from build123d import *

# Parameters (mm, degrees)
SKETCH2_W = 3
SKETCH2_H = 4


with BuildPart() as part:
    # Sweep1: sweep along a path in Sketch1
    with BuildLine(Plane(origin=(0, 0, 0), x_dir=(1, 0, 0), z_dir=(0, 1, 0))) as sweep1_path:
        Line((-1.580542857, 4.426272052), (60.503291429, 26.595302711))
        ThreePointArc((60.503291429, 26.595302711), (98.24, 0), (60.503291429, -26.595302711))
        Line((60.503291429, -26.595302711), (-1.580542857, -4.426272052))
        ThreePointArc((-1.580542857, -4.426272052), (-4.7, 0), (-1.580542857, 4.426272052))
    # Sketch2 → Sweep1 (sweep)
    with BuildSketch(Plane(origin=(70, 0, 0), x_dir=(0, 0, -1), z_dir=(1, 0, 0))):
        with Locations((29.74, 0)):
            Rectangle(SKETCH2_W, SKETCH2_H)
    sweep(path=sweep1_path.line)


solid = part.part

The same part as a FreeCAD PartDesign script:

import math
import FreeCAD as App
import Part
import Sketcher
Q = App.Units.Quantity


def add_polygon(sketch, points):
    """Adds a closed chain of lines whose ends are joined by coincident constraints."""
    first, n = sketch.GeometryCount, len(points)
    for a, b in zip(points, points[1:] + points[:1]):
        sketch.addGeometry(Part.LineSegment(App.Vector(*a, 0), App.Vector(*b, 0)), False)
    for i in range(n):
        sketch.addConstraint(Sketcher.Constraint("Coincident", first + i, 2, first + (i + 1) % n, 1))

doc = App.newDocument("Part")
params = doc.addObject("Spreadsheet::Sheet", "Params")
for row, (alias, value) in enumerate([
    ("sketch1_width", "4 mm"),
    ("sketch1_height", "3 mm"),
    ("sketch2_radius", "4.7 mm"),
    ("sketch2_radius2", "28.24 mm"),
], start=1):
    params.set(f"A{row}", alias)
    params.set(f"B{row}", "=" + value)
    params.setAlias(f"B{row}", alias)

body = doc.addObject("PartDesign::Body", "Body")

# Sketch on YZ plane
sketch1 = body.newObject("Sketcher::SketchObject", "Sketch")
sketch1.AttachmentSupport = (doc.getObject("YZ_Plane"), [""])
sketch1.MapMode = "FlatFace"
sketch1.AttachmentOffset = App.Placement(App.Vector(0, 0, 70), App.Rotation())
add_polygon(sketch1, [(2, -28.2), (-2, -28.2), (-2, -31.2), (2, -31.2)])  # lines 0-3
sketch1.addConstraint([
    Sketcher.Constraint("Horizontal", 0),
    Sketcher.Constraint("Vertical", 1),
    Sketcher.Constraint("Horizontal", 2),
    Sketcher.Constraint("Vertical", 3),
    Sketcher.Constraint("DistanceX", 0, 2, 0, 1, Q("4 mm")),
    Sketcher.Constraint("DistanceY", 1, 2, 1, 1, Q("3 mm")),
    Sketcher.Constraint("DistanceX", 0, 2, -1, 1, Q("2 mm")),
    Sketcher.Constraint("DistanceY", 0, 2, -1, 1, Q("28.24 mm")),
])
sketch1.setExpression("Constraints[8]", "Params.sketch1_width")
sketch1.setExpression("Constraints[9]", "Params.sketch1_height")

# Sketch on XZ plane
sketch2 = body.newObject("Sketcher::SketchObject", "Sketch001")
sketch2.AttachmentSupport = (doc.getObject("XZ_Plane"), [""])
sketch2.MapMode = "FlatFace"
sketch2.addGeometry([
    Part.LineSegment(App.Vector(-1.6, -4.4, 0), App.Vector(60.5, -26.6, 0)),
    Part.ArcOfCircle(Part.Circle(App.Vector(70, 0, 0), App.Vector(0, 0, 1), 28.2), math.radians(-110), math.radians(110)),
    Part.LineSegment(App.Vector(60.5, 26.6, 0), App.Vector(-1.6, 4.4, 0)),
    Part.ArcOfCircle(Part.Circle(App.Vector(0, 0, 0), App.Vector(0, 0, 1), 4.7), math.radians(110), math.radians(250)),
], False)
sketch2.addConstraint([
    Sketcher.Constraint("Tangent", 0, 2, 1, 1),
    Sketcher.Constraint("Tangent", 1, 2, 2, 1),
    Sketcher.Constraint("Tangent", 2, 2, 3, 1),
    Sketcher.Constraint("Tangent", 3, 2, 0, 1),
    Sketcher.Constraint("Coincident", 3, 3, -1, 1),
    Sketcher.Constraint("PointOnObject", 1, 3, -1),
    Sketcher.Constraint("Radius", 3, Q("4.7 mm")),
    Sketcher.Constraint("Radius", 1, Q("28.24 mm")),
    Sketcher.Constraint("DistanceX", -1, 1, 1, 3, Q("70 mm")),
])
sketch2.setExpression("Constraints[6]", "Params.sketch2_radius")
sketch2.setExpression("Constraints[7]", "Params.sketch2_radius2")
doc.recompute()

additivepipe = body.newObject("PartDesign::AdditivePipe", "AdditivePipe")
additivepipe.Profile = sketch1
additivepipe.Spine = (sketch2, ["Edge1", "Edge2", "Edge3", "Edge4"])

doc.recompute()
